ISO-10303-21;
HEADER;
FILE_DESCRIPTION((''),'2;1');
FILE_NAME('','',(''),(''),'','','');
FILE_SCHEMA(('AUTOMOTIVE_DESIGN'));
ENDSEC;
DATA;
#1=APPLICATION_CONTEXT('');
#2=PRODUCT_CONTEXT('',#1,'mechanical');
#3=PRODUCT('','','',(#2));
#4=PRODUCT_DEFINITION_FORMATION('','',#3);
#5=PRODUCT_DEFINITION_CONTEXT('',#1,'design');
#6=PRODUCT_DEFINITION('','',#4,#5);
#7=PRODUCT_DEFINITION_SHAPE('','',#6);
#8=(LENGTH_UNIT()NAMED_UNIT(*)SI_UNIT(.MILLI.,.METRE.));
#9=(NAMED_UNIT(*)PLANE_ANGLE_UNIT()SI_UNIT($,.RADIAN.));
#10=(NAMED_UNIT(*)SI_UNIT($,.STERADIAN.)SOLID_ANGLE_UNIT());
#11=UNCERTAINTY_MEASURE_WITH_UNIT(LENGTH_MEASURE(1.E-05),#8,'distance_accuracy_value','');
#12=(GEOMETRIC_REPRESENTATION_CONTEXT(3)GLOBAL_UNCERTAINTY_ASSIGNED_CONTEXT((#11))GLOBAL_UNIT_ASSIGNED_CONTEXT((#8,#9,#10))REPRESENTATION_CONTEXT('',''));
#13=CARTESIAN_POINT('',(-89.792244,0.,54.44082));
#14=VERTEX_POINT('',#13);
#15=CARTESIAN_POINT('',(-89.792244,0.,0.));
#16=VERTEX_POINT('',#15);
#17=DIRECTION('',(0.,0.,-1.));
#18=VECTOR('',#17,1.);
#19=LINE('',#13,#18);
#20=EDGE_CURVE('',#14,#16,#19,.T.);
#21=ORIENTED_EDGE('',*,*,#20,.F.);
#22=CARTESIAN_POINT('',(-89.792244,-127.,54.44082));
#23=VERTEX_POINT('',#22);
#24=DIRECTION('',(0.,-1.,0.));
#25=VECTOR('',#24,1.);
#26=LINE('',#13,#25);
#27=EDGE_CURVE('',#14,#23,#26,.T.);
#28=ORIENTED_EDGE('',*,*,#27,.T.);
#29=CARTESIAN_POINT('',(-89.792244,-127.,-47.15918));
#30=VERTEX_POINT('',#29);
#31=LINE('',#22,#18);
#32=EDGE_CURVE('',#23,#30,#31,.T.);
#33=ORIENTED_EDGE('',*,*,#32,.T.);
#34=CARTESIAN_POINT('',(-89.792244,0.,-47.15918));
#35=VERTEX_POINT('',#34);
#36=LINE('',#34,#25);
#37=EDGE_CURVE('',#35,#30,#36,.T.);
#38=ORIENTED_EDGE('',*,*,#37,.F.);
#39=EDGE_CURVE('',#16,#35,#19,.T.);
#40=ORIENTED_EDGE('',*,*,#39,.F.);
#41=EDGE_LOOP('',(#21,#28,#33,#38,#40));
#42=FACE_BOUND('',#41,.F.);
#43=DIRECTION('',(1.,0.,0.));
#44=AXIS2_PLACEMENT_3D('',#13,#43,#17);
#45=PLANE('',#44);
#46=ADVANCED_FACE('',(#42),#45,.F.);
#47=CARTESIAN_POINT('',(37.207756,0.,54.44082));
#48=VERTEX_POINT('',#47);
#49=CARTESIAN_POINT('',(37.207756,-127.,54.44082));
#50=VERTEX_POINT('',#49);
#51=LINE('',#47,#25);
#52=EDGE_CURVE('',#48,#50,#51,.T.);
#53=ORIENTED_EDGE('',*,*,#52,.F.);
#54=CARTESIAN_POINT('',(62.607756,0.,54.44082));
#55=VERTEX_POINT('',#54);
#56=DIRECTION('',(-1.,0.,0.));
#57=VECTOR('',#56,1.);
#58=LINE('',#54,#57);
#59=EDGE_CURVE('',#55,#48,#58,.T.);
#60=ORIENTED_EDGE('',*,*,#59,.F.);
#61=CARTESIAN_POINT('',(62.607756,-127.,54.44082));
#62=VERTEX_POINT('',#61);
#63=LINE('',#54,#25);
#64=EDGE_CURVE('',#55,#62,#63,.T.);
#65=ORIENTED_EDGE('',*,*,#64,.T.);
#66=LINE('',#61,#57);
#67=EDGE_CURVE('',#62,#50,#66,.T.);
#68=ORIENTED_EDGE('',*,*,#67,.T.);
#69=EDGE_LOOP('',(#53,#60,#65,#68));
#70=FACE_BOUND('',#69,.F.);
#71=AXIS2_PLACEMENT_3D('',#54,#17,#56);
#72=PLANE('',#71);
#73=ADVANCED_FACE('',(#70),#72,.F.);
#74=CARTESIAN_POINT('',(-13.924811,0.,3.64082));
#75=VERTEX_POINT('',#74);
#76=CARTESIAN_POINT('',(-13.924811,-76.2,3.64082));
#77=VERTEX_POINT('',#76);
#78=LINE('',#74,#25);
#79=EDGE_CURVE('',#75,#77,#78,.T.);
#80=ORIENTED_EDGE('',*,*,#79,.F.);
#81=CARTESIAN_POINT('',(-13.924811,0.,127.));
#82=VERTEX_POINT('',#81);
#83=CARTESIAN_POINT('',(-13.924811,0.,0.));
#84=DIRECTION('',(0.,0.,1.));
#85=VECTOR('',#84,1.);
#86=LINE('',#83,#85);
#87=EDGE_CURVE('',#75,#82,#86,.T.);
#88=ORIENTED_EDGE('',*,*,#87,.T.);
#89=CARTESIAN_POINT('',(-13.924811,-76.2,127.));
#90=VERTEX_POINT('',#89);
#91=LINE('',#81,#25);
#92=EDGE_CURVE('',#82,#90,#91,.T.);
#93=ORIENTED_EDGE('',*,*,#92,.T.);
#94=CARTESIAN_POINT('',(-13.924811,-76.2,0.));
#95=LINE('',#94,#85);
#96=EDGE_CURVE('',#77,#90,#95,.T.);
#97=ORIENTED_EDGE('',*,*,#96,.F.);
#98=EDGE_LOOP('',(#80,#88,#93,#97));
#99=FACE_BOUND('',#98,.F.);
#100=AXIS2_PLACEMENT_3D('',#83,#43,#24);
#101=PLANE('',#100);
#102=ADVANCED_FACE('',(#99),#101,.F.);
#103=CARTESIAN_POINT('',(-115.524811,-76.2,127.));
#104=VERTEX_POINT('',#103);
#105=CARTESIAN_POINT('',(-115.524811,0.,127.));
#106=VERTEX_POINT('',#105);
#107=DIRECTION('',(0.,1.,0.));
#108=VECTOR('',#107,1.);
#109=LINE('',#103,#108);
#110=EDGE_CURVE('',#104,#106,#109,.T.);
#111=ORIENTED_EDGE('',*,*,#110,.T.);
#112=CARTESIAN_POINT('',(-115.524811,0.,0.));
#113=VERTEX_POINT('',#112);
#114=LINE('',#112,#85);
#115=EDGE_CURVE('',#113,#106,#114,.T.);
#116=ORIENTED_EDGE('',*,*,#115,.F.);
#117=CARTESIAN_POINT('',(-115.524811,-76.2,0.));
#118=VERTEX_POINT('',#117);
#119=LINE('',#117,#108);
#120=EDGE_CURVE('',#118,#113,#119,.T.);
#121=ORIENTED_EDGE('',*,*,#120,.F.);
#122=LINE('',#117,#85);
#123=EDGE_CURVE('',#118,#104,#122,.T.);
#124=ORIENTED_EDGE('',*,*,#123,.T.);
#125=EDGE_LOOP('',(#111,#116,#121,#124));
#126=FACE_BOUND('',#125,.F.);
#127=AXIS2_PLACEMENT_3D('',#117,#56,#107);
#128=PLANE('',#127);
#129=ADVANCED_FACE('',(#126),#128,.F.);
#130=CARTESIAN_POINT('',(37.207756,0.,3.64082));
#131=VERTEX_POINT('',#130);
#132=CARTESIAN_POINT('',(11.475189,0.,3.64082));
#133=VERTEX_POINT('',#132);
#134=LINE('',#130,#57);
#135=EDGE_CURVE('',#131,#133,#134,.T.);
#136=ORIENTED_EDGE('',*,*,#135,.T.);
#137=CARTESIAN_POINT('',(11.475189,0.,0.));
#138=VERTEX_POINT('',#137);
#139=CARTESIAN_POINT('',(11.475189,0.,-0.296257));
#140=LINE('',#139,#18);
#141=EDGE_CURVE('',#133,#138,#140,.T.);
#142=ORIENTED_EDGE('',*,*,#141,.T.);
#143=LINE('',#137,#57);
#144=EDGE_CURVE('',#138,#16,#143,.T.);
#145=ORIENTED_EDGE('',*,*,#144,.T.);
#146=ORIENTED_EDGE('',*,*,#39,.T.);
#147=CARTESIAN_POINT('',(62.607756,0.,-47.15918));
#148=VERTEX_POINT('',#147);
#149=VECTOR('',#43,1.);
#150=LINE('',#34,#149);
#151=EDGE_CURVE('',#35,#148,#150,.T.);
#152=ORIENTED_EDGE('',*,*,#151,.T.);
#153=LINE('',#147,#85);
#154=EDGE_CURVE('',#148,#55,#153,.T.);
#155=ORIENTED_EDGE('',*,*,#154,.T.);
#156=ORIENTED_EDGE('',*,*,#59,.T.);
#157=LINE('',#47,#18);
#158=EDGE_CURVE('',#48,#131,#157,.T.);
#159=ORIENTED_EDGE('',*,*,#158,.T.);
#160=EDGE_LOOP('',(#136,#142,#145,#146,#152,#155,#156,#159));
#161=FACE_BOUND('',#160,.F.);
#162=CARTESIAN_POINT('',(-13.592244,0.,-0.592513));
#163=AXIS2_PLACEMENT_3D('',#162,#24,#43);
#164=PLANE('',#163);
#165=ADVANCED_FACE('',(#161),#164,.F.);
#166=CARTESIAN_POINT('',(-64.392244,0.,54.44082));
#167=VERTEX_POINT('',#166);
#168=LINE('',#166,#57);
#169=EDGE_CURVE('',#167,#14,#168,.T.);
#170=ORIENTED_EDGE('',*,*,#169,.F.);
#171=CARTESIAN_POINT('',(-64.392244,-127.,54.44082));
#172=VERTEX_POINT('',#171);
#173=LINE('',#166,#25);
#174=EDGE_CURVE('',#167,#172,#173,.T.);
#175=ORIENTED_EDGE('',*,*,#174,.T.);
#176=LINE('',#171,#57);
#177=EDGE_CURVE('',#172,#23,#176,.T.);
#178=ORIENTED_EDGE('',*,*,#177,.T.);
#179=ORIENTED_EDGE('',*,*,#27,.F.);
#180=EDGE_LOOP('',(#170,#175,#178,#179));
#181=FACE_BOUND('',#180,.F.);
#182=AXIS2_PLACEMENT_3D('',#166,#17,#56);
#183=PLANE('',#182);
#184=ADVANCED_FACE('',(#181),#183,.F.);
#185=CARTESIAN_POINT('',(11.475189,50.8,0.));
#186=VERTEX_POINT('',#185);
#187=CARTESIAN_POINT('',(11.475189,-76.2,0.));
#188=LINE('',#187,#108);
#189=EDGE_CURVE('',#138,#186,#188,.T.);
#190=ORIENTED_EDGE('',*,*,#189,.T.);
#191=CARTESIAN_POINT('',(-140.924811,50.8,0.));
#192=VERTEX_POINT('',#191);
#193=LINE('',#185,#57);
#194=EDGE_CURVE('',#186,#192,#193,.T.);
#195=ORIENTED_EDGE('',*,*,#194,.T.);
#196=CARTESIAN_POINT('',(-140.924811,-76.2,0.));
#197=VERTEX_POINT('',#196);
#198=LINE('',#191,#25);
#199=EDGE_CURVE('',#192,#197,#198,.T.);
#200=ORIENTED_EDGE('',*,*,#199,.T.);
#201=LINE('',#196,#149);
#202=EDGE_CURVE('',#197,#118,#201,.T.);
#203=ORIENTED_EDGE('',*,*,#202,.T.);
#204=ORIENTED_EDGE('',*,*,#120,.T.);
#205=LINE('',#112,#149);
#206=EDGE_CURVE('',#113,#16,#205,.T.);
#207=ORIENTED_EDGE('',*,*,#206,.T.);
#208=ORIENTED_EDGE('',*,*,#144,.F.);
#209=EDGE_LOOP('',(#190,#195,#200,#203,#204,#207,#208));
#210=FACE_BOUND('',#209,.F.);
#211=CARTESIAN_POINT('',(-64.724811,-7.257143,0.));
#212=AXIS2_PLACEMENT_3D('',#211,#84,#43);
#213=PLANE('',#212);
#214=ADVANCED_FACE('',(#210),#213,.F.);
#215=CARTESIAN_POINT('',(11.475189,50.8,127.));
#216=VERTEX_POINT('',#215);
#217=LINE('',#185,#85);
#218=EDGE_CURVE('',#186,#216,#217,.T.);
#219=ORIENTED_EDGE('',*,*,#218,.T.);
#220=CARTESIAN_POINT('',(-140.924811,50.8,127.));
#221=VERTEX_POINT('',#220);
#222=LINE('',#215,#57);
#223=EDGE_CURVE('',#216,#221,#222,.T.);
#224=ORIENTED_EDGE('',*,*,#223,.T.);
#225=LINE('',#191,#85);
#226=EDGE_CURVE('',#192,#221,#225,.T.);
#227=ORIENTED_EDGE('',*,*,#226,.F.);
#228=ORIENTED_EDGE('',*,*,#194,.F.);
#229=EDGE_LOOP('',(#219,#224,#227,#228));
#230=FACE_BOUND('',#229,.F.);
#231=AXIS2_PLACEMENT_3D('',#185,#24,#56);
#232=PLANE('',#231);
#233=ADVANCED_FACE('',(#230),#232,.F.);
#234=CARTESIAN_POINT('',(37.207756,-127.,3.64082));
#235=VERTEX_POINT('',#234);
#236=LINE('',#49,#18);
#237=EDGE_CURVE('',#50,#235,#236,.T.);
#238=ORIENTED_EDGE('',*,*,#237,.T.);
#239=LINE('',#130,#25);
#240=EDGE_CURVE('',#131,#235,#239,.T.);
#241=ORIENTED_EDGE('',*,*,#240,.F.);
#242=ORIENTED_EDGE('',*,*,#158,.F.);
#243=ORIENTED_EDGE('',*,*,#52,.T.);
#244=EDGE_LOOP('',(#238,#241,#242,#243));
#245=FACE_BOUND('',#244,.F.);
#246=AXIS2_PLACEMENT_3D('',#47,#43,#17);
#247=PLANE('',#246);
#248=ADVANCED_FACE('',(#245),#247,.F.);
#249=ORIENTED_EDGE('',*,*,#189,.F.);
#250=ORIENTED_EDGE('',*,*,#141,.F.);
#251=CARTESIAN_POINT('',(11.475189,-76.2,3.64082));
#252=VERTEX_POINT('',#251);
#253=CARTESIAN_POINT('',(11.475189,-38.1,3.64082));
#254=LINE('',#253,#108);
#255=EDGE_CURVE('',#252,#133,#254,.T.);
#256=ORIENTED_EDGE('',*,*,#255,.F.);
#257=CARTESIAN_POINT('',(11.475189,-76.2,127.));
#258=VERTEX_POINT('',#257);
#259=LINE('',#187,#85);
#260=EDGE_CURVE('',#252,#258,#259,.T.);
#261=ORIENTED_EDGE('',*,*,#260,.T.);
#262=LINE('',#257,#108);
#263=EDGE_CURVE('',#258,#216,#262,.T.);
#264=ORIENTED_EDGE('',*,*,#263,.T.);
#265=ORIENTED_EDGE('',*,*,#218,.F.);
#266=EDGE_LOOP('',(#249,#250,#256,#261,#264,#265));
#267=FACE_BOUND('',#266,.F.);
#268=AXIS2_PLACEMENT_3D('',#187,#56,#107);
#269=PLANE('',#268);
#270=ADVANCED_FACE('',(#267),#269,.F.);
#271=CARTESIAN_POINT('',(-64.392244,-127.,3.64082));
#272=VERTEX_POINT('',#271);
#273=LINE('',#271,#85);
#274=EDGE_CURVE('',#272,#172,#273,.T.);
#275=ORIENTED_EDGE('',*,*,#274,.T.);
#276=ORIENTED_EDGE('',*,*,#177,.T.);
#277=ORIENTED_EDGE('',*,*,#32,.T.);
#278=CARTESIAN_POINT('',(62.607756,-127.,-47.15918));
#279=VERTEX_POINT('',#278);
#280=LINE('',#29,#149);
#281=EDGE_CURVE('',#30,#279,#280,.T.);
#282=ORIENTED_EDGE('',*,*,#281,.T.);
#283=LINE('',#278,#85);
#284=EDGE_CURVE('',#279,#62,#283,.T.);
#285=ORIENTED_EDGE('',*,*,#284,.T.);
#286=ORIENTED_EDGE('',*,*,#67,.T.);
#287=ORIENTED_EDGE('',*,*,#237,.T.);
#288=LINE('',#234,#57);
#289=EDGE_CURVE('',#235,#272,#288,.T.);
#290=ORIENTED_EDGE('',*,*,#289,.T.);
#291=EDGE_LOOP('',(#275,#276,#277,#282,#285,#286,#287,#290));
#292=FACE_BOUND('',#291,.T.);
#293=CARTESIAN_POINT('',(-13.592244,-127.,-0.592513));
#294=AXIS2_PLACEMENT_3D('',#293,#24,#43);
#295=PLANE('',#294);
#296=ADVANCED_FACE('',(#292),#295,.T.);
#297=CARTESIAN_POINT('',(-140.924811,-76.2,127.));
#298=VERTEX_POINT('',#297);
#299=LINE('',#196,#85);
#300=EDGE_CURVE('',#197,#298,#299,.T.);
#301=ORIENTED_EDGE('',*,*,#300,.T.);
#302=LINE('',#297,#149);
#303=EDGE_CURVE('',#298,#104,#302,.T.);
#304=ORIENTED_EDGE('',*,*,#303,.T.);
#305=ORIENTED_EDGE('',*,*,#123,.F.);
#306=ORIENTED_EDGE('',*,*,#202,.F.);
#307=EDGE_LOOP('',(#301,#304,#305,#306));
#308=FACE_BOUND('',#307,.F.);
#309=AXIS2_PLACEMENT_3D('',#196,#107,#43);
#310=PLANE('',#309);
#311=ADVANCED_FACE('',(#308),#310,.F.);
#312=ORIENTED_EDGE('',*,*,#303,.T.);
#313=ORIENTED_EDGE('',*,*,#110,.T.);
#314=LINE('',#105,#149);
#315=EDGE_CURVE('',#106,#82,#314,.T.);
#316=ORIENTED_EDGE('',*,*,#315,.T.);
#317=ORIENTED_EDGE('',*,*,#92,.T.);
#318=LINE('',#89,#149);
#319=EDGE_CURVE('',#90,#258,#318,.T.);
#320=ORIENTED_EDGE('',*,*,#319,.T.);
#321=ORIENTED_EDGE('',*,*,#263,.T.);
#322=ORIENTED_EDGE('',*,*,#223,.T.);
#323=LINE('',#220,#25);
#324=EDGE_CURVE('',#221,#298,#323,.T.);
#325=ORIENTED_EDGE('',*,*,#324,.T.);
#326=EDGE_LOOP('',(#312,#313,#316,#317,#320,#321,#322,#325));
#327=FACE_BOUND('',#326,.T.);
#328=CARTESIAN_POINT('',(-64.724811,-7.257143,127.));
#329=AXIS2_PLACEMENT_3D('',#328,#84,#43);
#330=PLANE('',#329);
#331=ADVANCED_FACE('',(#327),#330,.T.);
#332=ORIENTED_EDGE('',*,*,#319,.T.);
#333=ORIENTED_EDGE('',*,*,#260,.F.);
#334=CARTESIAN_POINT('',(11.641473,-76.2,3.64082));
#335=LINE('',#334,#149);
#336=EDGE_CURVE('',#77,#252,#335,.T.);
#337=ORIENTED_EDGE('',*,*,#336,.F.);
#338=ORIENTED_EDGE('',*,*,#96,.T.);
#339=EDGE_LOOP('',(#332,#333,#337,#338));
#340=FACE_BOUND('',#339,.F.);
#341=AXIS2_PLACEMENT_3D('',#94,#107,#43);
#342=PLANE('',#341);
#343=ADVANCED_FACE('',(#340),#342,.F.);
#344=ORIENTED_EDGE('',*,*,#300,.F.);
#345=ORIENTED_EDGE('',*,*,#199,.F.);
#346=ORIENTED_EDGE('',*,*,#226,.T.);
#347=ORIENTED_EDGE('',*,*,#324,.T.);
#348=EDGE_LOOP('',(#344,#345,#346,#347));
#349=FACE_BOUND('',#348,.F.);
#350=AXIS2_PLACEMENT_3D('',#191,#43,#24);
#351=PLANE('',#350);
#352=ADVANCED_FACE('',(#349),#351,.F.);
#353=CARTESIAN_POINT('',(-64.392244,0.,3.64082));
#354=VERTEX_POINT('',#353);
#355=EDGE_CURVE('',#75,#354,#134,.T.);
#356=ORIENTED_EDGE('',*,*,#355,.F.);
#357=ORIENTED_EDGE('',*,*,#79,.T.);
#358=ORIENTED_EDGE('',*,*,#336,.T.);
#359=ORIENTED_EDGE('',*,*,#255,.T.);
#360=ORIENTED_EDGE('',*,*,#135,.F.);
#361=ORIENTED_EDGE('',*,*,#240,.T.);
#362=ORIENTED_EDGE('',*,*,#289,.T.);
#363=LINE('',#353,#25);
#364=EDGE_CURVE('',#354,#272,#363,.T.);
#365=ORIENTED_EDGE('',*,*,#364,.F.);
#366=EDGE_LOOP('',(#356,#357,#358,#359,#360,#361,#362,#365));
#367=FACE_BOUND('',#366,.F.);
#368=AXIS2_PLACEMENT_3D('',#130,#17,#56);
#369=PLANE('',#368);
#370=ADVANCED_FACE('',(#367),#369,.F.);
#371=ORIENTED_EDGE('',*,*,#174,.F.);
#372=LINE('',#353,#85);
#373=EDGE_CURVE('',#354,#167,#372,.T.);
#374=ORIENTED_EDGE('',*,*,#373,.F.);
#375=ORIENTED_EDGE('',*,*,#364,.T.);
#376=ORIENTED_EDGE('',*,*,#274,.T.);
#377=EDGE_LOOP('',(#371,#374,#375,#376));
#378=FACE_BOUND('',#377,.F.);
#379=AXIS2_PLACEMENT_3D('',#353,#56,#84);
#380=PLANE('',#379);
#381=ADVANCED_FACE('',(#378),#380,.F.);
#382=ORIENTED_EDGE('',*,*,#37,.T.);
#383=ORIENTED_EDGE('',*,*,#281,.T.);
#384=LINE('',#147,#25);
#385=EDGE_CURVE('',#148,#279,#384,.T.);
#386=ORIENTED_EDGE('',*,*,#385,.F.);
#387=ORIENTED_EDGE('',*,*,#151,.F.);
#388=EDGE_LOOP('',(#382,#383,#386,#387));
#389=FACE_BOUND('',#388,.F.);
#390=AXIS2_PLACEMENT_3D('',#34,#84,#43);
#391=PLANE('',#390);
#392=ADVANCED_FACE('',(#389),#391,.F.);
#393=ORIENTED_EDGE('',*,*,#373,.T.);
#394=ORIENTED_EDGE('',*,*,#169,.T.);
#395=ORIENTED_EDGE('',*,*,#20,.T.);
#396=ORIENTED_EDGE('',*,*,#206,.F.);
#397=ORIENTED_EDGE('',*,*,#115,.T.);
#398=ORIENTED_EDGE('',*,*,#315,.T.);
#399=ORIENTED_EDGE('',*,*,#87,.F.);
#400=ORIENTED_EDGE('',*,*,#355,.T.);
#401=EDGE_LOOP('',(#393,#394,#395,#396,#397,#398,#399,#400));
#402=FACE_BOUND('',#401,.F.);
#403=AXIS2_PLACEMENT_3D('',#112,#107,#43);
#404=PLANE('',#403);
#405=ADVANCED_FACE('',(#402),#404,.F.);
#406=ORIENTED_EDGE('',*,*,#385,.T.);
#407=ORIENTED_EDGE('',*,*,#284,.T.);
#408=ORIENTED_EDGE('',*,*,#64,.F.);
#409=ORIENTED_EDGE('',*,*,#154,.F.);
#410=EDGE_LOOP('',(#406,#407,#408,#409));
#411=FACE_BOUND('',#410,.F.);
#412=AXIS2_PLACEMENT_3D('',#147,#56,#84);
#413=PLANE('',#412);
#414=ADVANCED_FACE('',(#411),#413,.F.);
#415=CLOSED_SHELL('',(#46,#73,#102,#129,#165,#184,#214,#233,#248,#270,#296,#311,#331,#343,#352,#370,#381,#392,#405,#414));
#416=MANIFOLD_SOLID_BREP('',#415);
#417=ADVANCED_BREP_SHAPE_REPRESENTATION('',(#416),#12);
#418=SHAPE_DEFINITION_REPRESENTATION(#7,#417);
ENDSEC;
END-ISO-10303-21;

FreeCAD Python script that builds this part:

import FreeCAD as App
import Part
import Sketcher

V = App.Vector
Q = App.Units.Quantity


def add_polygon(sketch, points):
    """Adds a closed chain of lines whose ends are joined by coincident constraints."""
    first, n = sketch.GeometryCount, len(points)
    for a, b in zip(points, points[1:] + points[:1]):
        sketch.addGeometry(Part.LineSegment(App.Vector(*a, 0), App.Vector(*b, 0)), False)
    for i in range(n):
        sketch.addConstraint(Sketcher.Constraint("Coincident", first + i, 2, first + (i + 1) % n, 1))

doc = App.newDocument("Part")
body = doc.addObject("PartDesign::Body", "Body")

# Sketch on XZ plane
sketch1 = body.newObject("Sketcher::SketchObject", "Sketch")
sketch1.AttachmentSupport = (doc.getObject("XZ_Plane"), [""])
sketch1.MapMode = "FlatFace"
add_polygon(sketch1, [(-90, 54), (-90, -47), (63, -47), (63, 54), (37, 54), (37, 4), (-64, 4), (-64, 54)])  # lines 0-7
sketch1.addConstraint(Sketcher.Constraint("Vertical", 0))
sketch1.addConstraint(Sketcher.Constraint("Horizontal", 1))
sketch1.addConstraint(Sketcher.Constraint("Vertical", 2))
sketch1.addConstraint(Sketcher.Constraint("Horizontal", 3))
sketch1.addConstraint(Sketcher.Constraint("Vertical", 4))
sketch1.addConstraint(Sketcher.Constraint("Horizontal", 5))
sketch1.addConstraint(Sketcher.Constraint("Vertical", 6))
sketch1.addConstraint(Sketcher.Constraint("Horizontal", 7))
sketch1.addConstraint(Sketcher.Constraint("Horizontal", 3, 2, 6, 2))
sketch1.addConstraint(Sketcher.Constraint("Equal", 3, 7))
sketch1.addConstraint(Sketcher.Constraint("Equal", 5, 0))
sketch1.addConstraint(Sketcher.Constraint("DistanceX", 1, 1, 1, 2, Q("6 in")))
sketch1.addConstraint(Sketcher.Constraint("DistanceX", 3, 2, 3, 1, Q("1 in")))
sketch1.addConstraint(Sketcher.Constraint("DistanceY", 4, 2, 4, 1, Q("2 in")))
sketch1.addConstraint(Sketcher.Constraint("DistanceY", 0, 2, -1, 1, Q("47.15918 mm")))
sketch1.addConstraint(Sketcher.Constraint("DistanceX", 0, 2, -1, 1, Q("89.792244 mm")))
pad1 = body.newObject("PartDesign::Pad", "Pad")
pad1.Profile = sketch1
pad1.Length = Q("5 in")

# Sketch on XY plane
sketch2 = body.newObject("Sketcher::SketchObject", "Sketch001")
sketch2.AttachmentSupport = (doc.getObject("XY_Plane"), [""])
sketch2.MapMode = "FlatFace"
add_polygon(sketch2, [(11, 51), (-141, 51), (-141, -76), (-116, -76), (-116, 0), (-14, 0), (-14, -76), (11, -76)])  # lines 0-7
sketch2.addConstraint(Sketcher.Constraint("Horizontal", 0))
sketch2.addConstraint(Sketcher.Constraint("Vertical", 1))
sketch2.addConstraint(Sketcher.Constraint("Horizontal", 2))
sketch2.addConstraint(Sketcher.Constraint("Vertical", 3))
sketch2.addConstraint(Sketcher.Constraint("Horizontal", 4))
sketch2.addConstraint(Sketcher.Constraint("Vertical", 5))
sketch2.addConstraint(Sketcher.Constraint("Horizontal", 6))
sketch2.addConstraint(Sketcher.Constraint("Vertical", 7))
sketch2.addConstraint(Sketcher.Constraint("PointOnObject", 3, 2, -1))
sketch2.addConstraint(Sketcher.Constraint("Horizontal", 2, 2, 5, 2))
sketch2.addConstraint(Sketcher.Constraint("Equal", 2, 6))
sketch2.addConstraint(Sketcher.Constraint("DistanceX", 0, 2, 0, 1, Q("6 in")))
sketch2.addConstraint(Sketcher.Constraint("DistanceX", 2, 1, 2, 2, Q("1 in")))
sketch2.addConstraint(Sketcher.Constraint("DistanceY", 1, 2, 1, 1, Q("5 in")))
sketch2.addConstraint(Sketcher.Constraint("DistanceY", 3, 1, 3, 2, Q("3 in")))
sketch2.addConstraint(Sketcher.Constraint("DistanceX", 0, 2, -1, 1, Q("140.924811 mm")))
pad2 = body.newObject("PartDesign::Pad", "Pad001")
pad2.Profile = sketch2
pad2.Length = Q("5 in")

doc.recompute()
